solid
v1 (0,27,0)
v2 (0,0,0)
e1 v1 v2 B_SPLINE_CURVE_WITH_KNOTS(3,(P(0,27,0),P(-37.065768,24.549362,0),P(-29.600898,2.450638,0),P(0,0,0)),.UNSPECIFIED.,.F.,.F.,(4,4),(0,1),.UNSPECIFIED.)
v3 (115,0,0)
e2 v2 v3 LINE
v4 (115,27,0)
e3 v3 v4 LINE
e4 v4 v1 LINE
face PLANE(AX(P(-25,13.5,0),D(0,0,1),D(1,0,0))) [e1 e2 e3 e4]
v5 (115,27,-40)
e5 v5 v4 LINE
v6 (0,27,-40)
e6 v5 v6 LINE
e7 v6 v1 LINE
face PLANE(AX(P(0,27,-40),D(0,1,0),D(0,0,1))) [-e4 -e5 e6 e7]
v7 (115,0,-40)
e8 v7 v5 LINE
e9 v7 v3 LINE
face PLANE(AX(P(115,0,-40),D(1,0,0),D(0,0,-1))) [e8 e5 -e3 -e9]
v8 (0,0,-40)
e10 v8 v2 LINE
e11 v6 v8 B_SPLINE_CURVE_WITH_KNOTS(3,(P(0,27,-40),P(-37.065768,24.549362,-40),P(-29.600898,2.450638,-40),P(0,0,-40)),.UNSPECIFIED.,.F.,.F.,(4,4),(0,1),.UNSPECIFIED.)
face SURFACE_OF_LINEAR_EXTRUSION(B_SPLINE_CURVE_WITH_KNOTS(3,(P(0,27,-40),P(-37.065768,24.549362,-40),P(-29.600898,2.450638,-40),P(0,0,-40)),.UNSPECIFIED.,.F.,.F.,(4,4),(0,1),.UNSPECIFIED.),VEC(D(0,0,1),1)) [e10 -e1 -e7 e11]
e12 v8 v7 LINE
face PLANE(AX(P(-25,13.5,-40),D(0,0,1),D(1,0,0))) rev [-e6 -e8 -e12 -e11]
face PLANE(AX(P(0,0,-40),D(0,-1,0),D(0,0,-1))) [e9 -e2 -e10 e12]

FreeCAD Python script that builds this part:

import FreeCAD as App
import Part
import Sketcher
Q = App.Units.Quantity

doc = App.newDocument("Part")
body = doc.addObject("PartDesign::Body", "Body")

sketch1 = body.newObject("Sketcher::SketchObject", "Sketch")
sketch1.AttachmentSupport = (doc.getObject("XY_Plane"), [""])
sketch1.MapMode = "FlatFace"
sketch1.addGeometry([
    Part.LineSegment(App.Vector(0, 0, 0), App.Vector(115, 0, 0)),
    Part.LineSegment(App.Vector(115, 0, 0), App.Vector(115, 27, 0)),
    Part.LineSegment(App.Vector(115, 27, 0), App.Vector(0, 27, 0)),
    Part.BSplineCurve([App.Vector(0, 0, 0), App.Vector(-29.600898, 2.450638, 0), App.Vector(-37.065768, 24.549362, 0), App.Vector(0, 27, 0)], [4, 4], [0, 1], False, 3, [1, 1, 1, 1], False),
], False)
sketch1.addConstraint([
    Sketcher.Constraint("Block", 3),
    Sketcher.Constraint("Coincident", 0, 2, 1, 1),
    Sketcher.Constraint("Coincident", 1, 2, 2, 1),
    Sketcher.Constraint("Coincident", 2, 2, 3, 2),
    Sketcher.Constraint("Coincident", 3, 1, 0, 1),
    Sketcher.Constraint("Horizontal", 0),
    Sketcher.Constraint("Vertical", 1),
    Sketcher.Constraint("Horizontal", 2),
    Sketcher.Constraint("DistanceX", 0, 1, 0, 2, Q("115 mm")),
])
pad1 = body.newObject("PartDesign::Pad", "Pad")
pad1.Profile = sketch1
pad1.Length = 40
pad1.Reversed = True

doc.recompute()
